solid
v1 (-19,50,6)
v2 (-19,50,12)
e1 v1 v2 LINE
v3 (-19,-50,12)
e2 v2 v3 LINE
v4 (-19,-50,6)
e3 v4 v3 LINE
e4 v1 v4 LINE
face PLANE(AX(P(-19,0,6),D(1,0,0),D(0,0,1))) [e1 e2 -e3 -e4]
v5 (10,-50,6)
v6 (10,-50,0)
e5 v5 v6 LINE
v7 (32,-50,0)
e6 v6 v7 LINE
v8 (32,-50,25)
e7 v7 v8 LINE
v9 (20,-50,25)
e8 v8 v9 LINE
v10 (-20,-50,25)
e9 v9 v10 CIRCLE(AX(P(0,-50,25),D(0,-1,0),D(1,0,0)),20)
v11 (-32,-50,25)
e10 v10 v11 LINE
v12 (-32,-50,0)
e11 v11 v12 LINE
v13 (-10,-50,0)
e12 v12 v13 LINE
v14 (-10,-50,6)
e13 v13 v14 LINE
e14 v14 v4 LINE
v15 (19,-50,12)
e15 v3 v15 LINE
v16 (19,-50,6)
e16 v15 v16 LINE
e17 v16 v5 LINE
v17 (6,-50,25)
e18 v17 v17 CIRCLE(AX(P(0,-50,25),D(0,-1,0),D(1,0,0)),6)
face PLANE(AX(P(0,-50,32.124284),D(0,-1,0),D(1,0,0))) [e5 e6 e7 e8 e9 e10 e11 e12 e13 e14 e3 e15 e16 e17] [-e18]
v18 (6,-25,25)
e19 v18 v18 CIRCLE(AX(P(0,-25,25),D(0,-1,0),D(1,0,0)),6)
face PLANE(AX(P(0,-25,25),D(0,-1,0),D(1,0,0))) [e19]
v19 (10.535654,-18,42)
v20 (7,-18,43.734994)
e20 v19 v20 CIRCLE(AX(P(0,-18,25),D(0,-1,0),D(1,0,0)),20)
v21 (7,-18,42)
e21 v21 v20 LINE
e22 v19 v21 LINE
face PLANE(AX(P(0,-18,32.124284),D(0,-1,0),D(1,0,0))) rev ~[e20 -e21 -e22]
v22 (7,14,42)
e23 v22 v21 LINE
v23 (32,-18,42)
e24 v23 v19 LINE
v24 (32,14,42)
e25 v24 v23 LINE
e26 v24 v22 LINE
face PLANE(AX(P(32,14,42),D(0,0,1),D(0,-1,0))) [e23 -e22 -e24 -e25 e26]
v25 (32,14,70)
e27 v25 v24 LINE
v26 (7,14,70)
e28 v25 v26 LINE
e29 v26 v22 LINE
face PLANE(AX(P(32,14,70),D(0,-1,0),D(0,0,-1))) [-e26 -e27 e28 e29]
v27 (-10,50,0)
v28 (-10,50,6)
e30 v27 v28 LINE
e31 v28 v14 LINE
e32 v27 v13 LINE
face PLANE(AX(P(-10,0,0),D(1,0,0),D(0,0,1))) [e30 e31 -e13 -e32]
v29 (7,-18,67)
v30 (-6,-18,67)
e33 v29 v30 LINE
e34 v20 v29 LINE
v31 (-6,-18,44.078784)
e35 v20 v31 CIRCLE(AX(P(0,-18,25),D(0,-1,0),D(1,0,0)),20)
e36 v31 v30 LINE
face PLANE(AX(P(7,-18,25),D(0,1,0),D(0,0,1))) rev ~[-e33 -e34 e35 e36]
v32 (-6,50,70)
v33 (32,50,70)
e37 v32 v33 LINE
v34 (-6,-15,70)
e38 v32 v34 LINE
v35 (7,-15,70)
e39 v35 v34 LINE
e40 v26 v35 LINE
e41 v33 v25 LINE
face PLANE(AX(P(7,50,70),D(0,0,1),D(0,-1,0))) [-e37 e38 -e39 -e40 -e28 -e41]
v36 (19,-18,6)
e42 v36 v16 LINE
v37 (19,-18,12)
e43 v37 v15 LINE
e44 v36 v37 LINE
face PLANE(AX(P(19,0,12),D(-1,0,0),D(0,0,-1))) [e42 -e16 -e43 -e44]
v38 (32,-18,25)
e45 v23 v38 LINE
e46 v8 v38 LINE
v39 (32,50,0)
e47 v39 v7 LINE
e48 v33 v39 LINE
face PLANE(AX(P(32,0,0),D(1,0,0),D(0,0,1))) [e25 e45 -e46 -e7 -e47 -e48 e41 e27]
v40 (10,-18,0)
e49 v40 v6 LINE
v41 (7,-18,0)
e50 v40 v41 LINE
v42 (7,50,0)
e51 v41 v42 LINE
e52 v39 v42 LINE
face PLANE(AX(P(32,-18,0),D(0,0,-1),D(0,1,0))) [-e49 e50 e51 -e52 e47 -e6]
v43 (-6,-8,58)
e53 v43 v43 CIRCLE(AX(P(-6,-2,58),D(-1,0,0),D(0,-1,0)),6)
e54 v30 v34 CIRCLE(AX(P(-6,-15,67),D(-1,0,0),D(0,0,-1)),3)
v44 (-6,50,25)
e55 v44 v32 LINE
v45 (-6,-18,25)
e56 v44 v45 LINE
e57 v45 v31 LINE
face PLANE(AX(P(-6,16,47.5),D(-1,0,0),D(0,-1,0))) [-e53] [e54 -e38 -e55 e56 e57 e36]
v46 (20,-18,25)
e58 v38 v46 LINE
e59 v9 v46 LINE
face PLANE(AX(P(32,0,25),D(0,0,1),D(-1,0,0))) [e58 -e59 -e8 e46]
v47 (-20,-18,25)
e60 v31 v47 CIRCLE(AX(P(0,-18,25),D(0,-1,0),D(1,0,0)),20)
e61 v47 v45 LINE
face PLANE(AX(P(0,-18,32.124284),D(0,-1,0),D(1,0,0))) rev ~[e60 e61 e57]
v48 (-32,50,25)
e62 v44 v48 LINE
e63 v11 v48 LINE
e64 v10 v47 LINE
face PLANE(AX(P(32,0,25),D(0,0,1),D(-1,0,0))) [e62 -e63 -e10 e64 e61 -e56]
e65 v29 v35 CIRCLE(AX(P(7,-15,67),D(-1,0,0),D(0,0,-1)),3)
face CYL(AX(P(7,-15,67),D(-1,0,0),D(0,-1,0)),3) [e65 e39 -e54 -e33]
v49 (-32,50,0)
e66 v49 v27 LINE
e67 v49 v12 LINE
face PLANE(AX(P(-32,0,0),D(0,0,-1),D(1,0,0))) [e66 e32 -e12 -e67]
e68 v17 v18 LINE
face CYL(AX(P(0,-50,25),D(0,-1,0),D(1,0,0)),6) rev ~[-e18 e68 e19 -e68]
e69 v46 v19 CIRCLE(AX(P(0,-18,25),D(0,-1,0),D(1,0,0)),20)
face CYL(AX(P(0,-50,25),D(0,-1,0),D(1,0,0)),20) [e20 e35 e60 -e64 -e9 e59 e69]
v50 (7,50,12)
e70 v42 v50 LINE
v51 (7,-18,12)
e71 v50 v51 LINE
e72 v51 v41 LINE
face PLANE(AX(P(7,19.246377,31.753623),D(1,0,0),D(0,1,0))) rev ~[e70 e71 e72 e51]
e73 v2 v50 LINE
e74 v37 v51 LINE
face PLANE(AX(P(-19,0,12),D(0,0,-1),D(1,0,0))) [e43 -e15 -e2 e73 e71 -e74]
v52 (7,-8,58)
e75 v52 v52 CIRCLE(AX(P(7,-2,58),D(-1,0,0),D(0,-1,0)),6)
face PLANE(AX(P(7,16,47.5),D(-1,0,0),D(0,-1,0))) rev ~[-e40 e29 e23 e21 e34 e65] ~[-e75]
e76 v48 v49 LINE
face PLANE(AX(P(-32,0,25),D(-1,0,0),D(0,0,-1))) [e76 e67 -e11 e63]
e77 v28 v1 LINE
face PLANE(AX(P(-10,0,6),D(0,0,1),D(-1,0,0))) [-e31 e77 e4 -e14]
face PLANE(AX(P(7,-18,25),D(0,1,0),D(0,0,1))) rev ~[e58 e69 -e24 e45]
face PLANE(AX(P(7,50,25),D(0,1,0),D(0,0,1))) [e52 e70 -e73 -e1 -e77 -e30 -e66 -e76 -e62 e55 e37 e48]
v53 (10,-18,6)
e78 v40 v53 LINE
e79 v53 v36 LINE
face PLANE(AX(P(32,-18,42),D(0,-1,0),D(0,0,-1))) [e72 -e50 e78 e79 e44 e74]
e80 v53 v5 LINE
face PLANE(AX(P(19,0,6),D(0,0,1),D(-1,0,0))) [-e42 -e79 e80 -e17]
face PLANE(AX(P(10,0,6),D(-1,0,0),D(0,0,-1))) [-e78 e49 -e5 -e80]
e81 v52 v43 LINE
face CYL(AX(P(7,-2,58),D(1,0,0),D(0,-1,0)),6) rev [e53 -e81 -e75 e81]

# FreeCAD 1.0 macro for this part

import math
import FreeCAD as App
import Part
import Sketcher
Q = App.Units.Quantity


def edges_at(feature, points):
    """Names of the edges that pass closest to the given points."""
    edges = feature.Shape.Edges
    near = lambda p: min(range(len(edges)), key=lambda i: edges[i].distToShape(Part.Vertex(*p))[0])
    return sorted({f"Edge{near(p) + 1}" for p in points})


def add_polygon(sketch, points):
    """Adds a closed chain of lines whose ends are joined by coincident constraints."""
    first, n = sketch.GeometryCount, len(points)
    for a, b in zip(points, points[1:] + points[:1]):
        sketch.addGeometry(Part.LineSegment(App.Vector(*a, 0), App.Vector(*b, 0)), False)
    for i in range(n):
        sketch.addConstraint(Sketcher.Constraint("Coincident", first + i, 2, first + (i + 1) % n, 1))

doc = App.newDocument("Part")
body = doc.addObject("PartDesign::Body", "Body")

# Sketch on XZ plane
sketch1 = body.newObject("Sketcher::SketchObject", "Sketch")
sketch1.AttachmentSupport = (doc.getObject("XZ_Plane"), [""])
sketch1.MapMode = "FlatFace"
add_polygon(sketch1, [(-32, 25), (-32, 0), (-10, 0), (-10, 6), (-19, 6), (-19, 12), (19, 12), (19, 6), (10, 6), (10, 0), (32, 0), (32, 25)])  # lines 0-11
sketch1.addConstraint(Sketcher.Constraint("Vertical", 0))
sketch1.addConstraint(Sketcher.Constraint("Horizontal", 1))
sketch1.addConstraint(Sketcher.Constraint("Vertical", 2))
sketch1.addConstraint(Sketcher.Constraint("Horizontal", 3))
sketch1.addConstraint(Sketcher.Constraint("Vertical", 4))
sketch1.addConstraint(Sketcher.Constraint("Horizontal", 5))
sketch1.addConstraint(Sketcher.Constraint("Vertical", 6))
sketch1.addConstraint(Sketcher.Constraint("Horizontal", 7))
sketch1.addConstraint(Sketcher.Constraint("Vertical", 8))
sketch1.addConstraint(Sketcher.Constraint("Horizontal", 9))
sketch1.addConstraint(Sketcher.Constraint("Vertical", 10))
sketch1.addConstraint(Sketcher.Constraint("Horizontal", 11))
sketch1.addConstraint(Sketcher.Constraint("Symmetric", 1, 2, 8, 2, -1, 1))
sketch1.addConstraint(Sketcher.Constraint("Symmetric", 3, 2, 6, 2, -2))
sketch1.addConstraint(Sketcher.Constraint("Symmetric", 0, 2, 9, 2, -2))
sketch1.addConstraint(Sketcher.Constraint("Equal", 2, 4))
sketch1.addConstraint(Sketcher.Constraint("DistanceX", 1, 1, 1, 2, Q("22 mm")))
sketch1.addConstraint(Sketcher.Constraint("DistanceX", 3, 2, 3, 1, Q("9 mm")))
sketch1.addConstraint(Sketcher.Constraint("DistanceX", 5, 1, 5, 2, Q("38 mm")))
sketch1.addConstraint(Sketcher.Constraint("DistanceY", 0, 2, 0, 1, Q("25 mm")))
sketch1.addConstraint(Sketcher.Constraint("DistanceY", 2, 1, 2, 2, Q("6 mm")))
pad1 = body.newObject("PartDesign::Pad", "Pad")
pad1.Profile = sketch1
pad1.Length = 100
pad1.Midplane = True

# Sketch on YZ plane
sketch2 = body.newObject("Sketcher::SketchObject", "Sketch001")
sketch2.AttachmentSupport = (doc.getObject("YZ_Plane"), [""])
sketch2.MapMode = "FlatFace"
sketch2.AttachmentOffset = App.Placement(App.Vector(0, 0, 32), App.Rotation())
add_polygon(sketch2, [(50, 0), (50, 70), (14, 70), (14, 42), (-18, 42), (-18, 0)])  # lines 0-5
sketch2.addConstraint(Sketcher.Constraint("Vertical", 0))
sketch2.addConstraint(Sketcher.Constraint("Horizontal", 1))
sketch2.addConstraint(Sketcher.Constraint("Vertical", 2))
sketch2.addConstraint(Sketcher.Constraint("Horizontal", 3))
sketch2.addConstraint(Sketcher.Constraint("Vertical", 4))
sketch2.addConstraint(Sketcher.Constraint("Horizontal", 5))
sketch2.addConstraint(Sketcher.Constraint("PointOnObject", 4, 2, -1))
sketch2.addConstraint(Sketcher.Constraint("DistanceX", 1, 2, 1, 1, Q("36 mm")))
sketch2.addConstraint(Sketcher.Constraint("DistanceX", 3, 2, 3, 1, Q("32 mm")))
sketch2.addConstraint(Sketcher.Constraint("DistanceY", 0, 1, 0, 2, Q("70 mm")))
sketch2.addConstraint(Sketcher.Constraint("DistanceY", 2, 2, 2, 1, Q("28 mm")))
sketch2.addConstraint(Sketcher.Constraint("DistanceX", -1, 1, 0, 2, Q("50 mm")))
pad2 = body.newObject("PartDesign::Pad", "Pad001")
pad2.Profile = sketch2
pad2.Length = 25
pad2.Reversed = True

# Sketch on YZ plane
sketch3 = body.newObject("Sketcher::SketchObject", "Sketch002")
sketch3.AttachmentSupport = (doc.getObject("YZ_Plane"), [""])
sketch3.MapMode = "FlatFace"
sketch3.AttachmentOffset = App.Placement(App.Vector(0, 0, 7), App.Rotation())
add_polygon(sketch3, [(50, 70), (50, 25), (-18, 25), (-18, 70)])  # lines 0-3
sketch3.addGeometry(Part.Circle(App.Vector(-2, 58, 0), App.Vector(0, 0, 1), 6), False)  # 4
sketch3.addConstraint(Sketcher.Constraint("Vertical", 0))
sketch3.addConstraint(Sketcher.Constraint("Horizontal", 1))
sketch3.addConstraint(Sketcher.Constraint("Vertical", 2))
sketch3.addConstraint(Sketcher.Constraint("Horizontal", 3))
sketch3.addConstraint(Sketcher.Constraint("Diameter", 4, Q("12 mm")))
sketch3.addConstraint(Sketcher.Constraint("DistanceX", 1, 2, 1, 1, Q("68 mm")))
sketch3.addConstraint(Sketcher.Constraint("DistanceY", 0, 2, 0, 1, Q("45 mm")))
sketch3.addConstraint(Sketcher.Constraint("DistanceX", 4, 3, -1, 1, Q("2 mm")))
sketch3.addConstraint(Sketcher.Constraint("DistanceY", -1, 1, 4, 3, Q("58 mm")))
sketch3.addConstraint(Sketcher.Constraint("DistanceX", -1, 1, 0, 2, Q("50 mm")))
sketch3.addConstraint(Sketcher.Constraint("DistanceY", -1, 1, 0, 2, Q("25 mm")))
pad3 = body.newObject("PartDesign::Pad", "Pad002")
pad3.Profile = sketch3
pad3.Length = 13
pad3.Reversed = True
doc.recompute()

fillet = body.newObject("PartDesign::Fillet", "Fillet")
fillet.Base = (pad3, edges_at(pad3, [(0.5, -18, 70)]))
fillet.Radius = 3

# Sketch on XZ plane
sketch4 = body.newObject("Sketcher::SketchObject", "Sketch003")
sketch4.AttachmentSupport = (doc.getObject("XZ_Plane"), [""])
sketch4.MapMode = "FlatFace"
sketch4.AttachmentOffset = App.Placement(App.Vector(0, 0, 50), App.Rotation())
sketch4.addGeometry(Part.ArcOfCircle(Part.Circle(App.Vector(0, 25, 0), App.Vector(0, 0, 1), 20), math.radians(0), math.radians(180)), False)
sketch4.addGeometry(Part.LineSegment(App.Vector(-20, 25, 0), App.Vector(-6, 25, 0)), False)
sketch4.addGeometry(Part.ArcOfCircle(Part.Circle(App.Vector(0, 25, 0), App.Vector(0, 0, 1), 6), math.radians(180), math.radians(360)), False)
sketch4.addGeometry(Part.LineSegment(App.Vector(6, 25, 0), App.Vector(20, 25, 0)), False)
sketch4.addConstraint(Sketcher.Constraint("Coincident", 0, 2, 1, 1))
sketch4.addConstraint(Sketcher.Constraint("Coincident", 1, 2, 2, 1))
sketch4.addConstraint(Sketcher.Constraint("Coincident", 2, 2, 3, 1))
sketch4.addConstraint(Sketcher.Constraint("Coincident", 3, 2, 0, 1))
sketch4.addConstraint(Sketcher.Constraint("Horizontal", 1))
sketch4.addConstraint(Sketcher.Constraint("Horizontal", 3))
sketch4.addConstraint(Sketcher.Constraint("Coincident", 2, 3, 0, 3))
sketch4.addConstraint(Sketcher.Constraint("Symmetric", 1, 2, 2, 2, -2))
sketch4.addConstraint(Sketcher.Constraint("Horizontal", 2, 3, 0, 2))
sketch4.addConstraint(Sketcher.Constraint("Radius", 0, Q("20 mm")))
sketch4.addConstraint(Sketcher.Constraint("Radius", 2, Q("6 mm")))
sketch4.addConstraint(Sketcher.Constraint("DistanceY", -1, 1, 0, 3, Q("25 mm")))
pad4 = body.newObject("PartDesign::Pad", "Pad003")
pad4.Profile = sketch4
pad4.Length = 32
pad4.Reversed = True

# Sketch on XZ plane
sketch5 = body.newObject("Sketcher::SketchObject", "Sketch004")
sketch5.AttachmentSupport = (doc.getObject("XZ_Plane"), [""])
sketch5.MapMode = "FlatFace"
sketch5.AttachmentOffset = App.Placement(App.Vector(0, 0, 50), App.Rotation())
sketch5.addGeometry(Part.Circle(App.Vector(0, 25, 0), App.Vector(0, 0, 1), 6), False)
sketch5.addConstraint(Sketcher.Constraint("PointOnObject", 0, 3, -2))
sketch5.addConstraint(Sketcher.Constraint("Diameter", 0, Q("12 mm")))
sketch5.addConstraint(Sketcher.Constraint("DistanceY", -1, 1, 0, 3, Q("25 mm")))
pocket1 = body.newObject("PartDesign::Pocket", "Pocket")
pocket1.Profile = sketch5
pocket1.Length = 25

doc.recompute()
